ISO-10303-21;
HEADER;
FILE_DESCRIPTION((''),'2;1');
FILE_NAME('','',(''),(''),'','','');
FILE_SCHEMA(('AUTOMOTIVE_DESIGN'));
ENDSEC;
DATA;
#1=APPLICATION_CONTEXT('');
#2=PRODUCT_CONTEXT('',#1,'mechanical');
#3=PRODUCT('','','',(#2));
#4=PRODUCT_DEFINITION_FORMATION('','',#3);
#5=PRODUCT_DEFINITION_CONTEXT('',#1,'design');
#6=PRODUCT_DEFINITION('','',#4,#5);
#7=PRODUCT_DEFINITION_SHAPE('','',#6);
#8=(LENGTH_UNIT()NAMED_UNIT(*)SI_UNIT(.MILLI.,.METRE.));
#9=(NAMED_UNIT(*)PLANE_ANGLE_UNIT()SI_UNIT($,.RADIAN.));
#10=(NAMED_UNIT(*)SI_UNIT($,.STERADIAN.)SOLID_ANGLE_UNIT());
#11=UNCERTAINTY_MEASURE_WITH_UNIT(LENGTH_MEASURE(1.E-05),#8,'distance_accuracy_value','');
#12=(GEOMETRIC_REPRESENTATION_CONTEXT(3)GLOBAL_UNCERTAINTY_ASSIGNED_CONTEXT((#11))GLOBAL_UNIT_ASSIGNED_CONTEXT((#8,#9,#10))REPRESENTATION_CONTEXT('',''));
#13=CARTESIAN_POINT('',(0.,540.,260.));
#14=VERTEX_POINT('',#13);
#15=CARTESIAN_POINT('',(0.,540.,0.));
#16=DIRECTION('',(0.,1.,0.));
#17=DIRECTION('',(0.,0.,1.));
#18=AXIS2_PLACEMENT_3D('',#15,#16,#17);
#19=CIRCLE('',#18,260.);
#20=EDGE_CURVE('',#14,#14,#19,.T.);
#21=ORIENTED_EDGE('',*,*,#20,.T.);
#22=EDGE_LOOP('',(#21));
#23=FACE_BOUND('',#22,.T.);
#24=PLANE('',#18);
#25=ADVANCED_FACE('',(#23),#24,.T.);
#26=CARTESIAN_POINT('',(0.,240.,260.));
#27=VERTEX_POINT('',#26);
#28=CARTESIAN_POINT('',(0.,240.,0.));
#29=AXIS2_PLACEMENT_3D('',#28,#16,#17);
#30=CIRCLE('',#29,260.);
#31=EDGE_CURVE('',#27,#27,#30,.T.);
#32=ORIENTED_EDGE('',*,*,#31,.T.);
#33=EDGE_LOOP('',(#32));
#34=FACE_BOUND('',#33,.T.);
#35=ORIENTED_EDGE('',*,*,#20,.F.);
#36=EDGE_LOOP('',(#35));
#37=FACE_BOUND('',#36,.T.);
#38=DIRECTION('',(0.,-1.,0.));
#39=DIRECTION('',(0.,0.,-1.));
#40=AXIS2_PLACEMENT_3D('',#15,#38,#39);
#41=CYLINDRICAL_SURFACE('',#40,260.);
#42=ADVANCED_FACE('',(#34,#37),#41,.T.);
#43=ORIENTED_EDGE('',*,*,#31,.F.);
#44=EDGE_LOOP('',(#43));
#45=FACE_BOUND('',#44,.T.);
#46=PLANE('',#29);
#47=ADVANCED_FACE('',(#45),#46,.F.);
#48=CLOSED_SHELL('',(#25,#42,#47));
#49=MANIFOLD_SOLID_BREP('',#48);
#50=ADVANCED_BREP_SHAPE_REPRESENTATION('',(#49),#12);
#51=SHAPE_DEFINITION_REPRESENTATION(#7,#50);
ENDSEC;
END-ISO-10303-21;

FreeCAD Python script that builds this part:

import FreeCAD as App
import Part
import Sketcher
from FreeCAD import Vector

doc = App.newDocument("Part")
body = doc.addObject("PartDesign::Body", "Body")

sketch1 = body.newObject("Sketcher::SketchObject", "Sketch")
sketch1.AttachmentSupport = (doc.getObject("XZ_Plane"), [""])
sketch1.MapMode = "FlatFace"
sketch1.AttachmentOffset = App.Placement(Vector(0, 0, -240), App.Rotation())
sketch1.addGeometry(Part.Circle(Vector(0, 0, 0), Vector(0, 0, 1), 260), False)
sketch1.addConstraint(Sketcher.Constraint("Coincident", 0, 3, -1, 1))
sketch1.addConstraint(Sketcher.Constraint("Diameter", 0, 520.0))
pad1 = body.newObject("PartDesign::Pad", "Pad")
pad1.Profile = sketch1
pad1.Length = 300
pad1.Reversed = True

doc.recompute()
